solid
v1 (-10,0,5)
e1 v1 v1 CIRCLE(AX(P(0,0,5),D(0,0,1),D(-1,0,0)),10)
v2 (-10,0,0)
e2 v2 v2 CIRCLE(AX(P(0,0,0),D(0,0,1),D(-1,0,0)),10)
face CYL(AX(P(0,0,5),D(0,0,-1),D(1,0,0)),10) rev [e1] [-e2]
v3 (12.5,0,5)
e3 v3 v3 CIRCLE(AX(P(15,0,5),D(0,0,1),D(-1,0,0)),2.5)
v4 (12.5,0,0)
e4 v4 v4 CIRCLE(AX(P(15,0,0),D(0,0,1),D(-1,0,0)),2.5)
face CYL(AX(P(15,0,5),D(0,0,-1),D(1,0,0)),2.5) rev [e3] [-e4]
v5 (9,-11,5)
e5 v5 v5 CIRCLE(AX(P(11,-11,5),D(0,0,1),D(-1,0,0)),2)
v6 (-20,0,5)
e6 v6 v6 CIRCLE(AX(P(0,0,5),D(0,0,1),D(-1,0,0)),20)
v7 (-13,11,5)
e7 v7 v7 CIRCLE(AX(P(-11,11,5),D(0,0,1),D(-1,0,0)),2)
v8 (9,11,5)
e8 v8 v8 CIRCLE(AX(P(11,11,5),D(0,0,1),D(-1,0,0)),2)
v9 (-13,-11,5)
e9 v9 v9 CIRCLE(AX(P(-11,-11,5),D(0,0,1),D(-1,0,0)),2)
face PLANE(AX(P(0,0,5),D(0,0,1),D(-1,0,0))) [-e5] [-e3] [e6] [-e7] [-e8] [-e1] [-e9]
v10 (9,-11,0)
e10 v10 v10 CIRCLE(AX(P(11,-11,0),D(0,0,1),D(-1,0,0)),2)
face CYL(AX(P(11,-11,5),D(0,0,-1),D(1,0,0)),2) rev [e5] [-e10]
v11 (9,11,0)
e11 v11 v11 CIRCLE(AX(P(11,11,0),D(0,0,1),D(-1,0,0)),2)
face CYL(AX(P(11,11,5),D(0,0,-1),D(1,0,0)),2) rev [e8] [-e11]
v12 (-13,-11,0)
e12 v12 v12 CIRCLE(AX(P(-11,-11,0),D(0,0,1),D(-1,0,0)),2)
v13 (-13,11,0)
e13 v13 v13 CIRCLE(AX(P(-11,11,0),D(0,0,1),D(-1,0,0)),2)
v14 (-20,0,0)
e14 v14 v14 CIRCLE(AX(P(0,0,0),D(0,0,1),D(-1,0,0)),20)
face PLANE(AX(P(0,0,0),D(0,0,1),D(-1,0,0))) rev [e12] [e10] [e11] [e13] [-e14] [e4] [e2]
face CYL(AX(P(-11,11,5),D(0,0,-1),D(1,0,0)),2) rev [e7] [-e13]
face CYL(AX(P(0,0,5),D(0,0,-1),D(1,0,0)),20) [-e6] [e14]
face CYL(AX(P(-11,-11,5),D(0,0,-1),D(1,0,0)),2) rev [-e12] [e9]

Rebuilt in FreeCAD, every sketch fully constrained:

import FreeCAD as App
import Part
import Sketcher

doc = App.newDocument("Part")
body = doc.addObject("PartDesign::Body", "Body")

# Sketch on YZ plane
sketch1 = body.newObject("Sketcher::SketchObject", "Sketch")
sketch1.AttachmentSupport = (doc.getObject("YZ_Plane"), [""])
sketch1.MapMode = "FlatFace"
sketch1.addGeometry(Part.Circle(App.Vector(0, 0, 0), App.Vector(0, 0, 1), 20), False)
sketch1.addGeometry(Part.Circle(App.Vector(-11, 11, 0), App.Vector(0, 0, 1), 2), False)
sketch1.addGeometry(Part.Circle(App.Vector(-11, -11, 0), App.Vector(0, 0, 1), 2), False)
sketch1.addGeometry(Part.Circle(App.Vector(0, 15, 0), App.Vector(0, 0, 1), 2.5), False)
sketch1.addGeometry(Part.Circle(App.Vector(11, 11, 0), App.Vector(0, 0, 1), 2), False)
sketch1.addGeometry(Part.Circle(App.Vector(0, 0, 0), App.Vector(0, 0, 1), 10), False)
sketch1.addGeometry(Part.Circle(App.Vector(11, -11, 0), App.Vector(0, 0, 1), 2), False)
sketch1.addConstraint(Sketcher.Constraint("Coincident", 0, 3, -1, 1))
sketch1.addConstraint(Sketcher.Constraint("Coincident", 5, 3, -1, 1))
sketch1.addConstraint(Sketcher.Constraint("Equal", 1, 2))
sketch1.addConstraint(Sketcher.Constraint("Equal", 2, 4))
sketch1.addConstraint(Sketcher.Constraint("Equal", 4, 6))
sketch1.addConstraint(Sketcher.Constraint("Symmetric", 2, 3, 4, 3, -1, 1))
sketch1.addConstraint(Sketcher.Constraint("Symmetric", 1, 3, 6, 3, -1, 1))
sketch1.addConstraint(Sketcher.Constraint("Symmetric", 1, 3, 4, 3, -2))
sketch1.addConstraint(Sketcher.Constraint("PointOnObject", 3, 3, -2))
sketch1.addConstraint(Sketcher.Constraint("Diameter", 0, 40.0))
sketch1.addConstraint(Sketcher.Constraint("Diameter", 1, 4.0))
sketch1.addConstraint(Sketcher.Constraint("Diameter", 3, 5.0))
sketch1.addConstraint(Sketcher.Constraint("Diameter", 5, 20.0))
sketch1.addConstraint(Sketcher.Constraint("DistanceX", 1, 3, -1, 1, 11.0))
sketch1.addConstraint(Sketcher.Constraint("DistanceY", -1, 1, 1, 3, 11.0))
sketch1.addConstraint(Sketcher.Constraint("DistanceY", -1, 1, 3, 3, 15.0))
pad1 = body.newObject("PartDesign::Pad", "Pad")
pad1.Profile = sketch1
pad1.Length = 5
body2 = doc.addObject("PartDesign::Body", "Body001")
doc.recompute()

body.Placement = App.Placement(App.Vector(0, 0, 0), App.Rotation(App.Vector(0.707106781, 0, 0.707106781), 180))
boolean = body2.newObject("PartDesign::Boolean", "Boolean")
boolean.Type = "Fuse"
boolean.addObjects([body])

doc.recompute()
